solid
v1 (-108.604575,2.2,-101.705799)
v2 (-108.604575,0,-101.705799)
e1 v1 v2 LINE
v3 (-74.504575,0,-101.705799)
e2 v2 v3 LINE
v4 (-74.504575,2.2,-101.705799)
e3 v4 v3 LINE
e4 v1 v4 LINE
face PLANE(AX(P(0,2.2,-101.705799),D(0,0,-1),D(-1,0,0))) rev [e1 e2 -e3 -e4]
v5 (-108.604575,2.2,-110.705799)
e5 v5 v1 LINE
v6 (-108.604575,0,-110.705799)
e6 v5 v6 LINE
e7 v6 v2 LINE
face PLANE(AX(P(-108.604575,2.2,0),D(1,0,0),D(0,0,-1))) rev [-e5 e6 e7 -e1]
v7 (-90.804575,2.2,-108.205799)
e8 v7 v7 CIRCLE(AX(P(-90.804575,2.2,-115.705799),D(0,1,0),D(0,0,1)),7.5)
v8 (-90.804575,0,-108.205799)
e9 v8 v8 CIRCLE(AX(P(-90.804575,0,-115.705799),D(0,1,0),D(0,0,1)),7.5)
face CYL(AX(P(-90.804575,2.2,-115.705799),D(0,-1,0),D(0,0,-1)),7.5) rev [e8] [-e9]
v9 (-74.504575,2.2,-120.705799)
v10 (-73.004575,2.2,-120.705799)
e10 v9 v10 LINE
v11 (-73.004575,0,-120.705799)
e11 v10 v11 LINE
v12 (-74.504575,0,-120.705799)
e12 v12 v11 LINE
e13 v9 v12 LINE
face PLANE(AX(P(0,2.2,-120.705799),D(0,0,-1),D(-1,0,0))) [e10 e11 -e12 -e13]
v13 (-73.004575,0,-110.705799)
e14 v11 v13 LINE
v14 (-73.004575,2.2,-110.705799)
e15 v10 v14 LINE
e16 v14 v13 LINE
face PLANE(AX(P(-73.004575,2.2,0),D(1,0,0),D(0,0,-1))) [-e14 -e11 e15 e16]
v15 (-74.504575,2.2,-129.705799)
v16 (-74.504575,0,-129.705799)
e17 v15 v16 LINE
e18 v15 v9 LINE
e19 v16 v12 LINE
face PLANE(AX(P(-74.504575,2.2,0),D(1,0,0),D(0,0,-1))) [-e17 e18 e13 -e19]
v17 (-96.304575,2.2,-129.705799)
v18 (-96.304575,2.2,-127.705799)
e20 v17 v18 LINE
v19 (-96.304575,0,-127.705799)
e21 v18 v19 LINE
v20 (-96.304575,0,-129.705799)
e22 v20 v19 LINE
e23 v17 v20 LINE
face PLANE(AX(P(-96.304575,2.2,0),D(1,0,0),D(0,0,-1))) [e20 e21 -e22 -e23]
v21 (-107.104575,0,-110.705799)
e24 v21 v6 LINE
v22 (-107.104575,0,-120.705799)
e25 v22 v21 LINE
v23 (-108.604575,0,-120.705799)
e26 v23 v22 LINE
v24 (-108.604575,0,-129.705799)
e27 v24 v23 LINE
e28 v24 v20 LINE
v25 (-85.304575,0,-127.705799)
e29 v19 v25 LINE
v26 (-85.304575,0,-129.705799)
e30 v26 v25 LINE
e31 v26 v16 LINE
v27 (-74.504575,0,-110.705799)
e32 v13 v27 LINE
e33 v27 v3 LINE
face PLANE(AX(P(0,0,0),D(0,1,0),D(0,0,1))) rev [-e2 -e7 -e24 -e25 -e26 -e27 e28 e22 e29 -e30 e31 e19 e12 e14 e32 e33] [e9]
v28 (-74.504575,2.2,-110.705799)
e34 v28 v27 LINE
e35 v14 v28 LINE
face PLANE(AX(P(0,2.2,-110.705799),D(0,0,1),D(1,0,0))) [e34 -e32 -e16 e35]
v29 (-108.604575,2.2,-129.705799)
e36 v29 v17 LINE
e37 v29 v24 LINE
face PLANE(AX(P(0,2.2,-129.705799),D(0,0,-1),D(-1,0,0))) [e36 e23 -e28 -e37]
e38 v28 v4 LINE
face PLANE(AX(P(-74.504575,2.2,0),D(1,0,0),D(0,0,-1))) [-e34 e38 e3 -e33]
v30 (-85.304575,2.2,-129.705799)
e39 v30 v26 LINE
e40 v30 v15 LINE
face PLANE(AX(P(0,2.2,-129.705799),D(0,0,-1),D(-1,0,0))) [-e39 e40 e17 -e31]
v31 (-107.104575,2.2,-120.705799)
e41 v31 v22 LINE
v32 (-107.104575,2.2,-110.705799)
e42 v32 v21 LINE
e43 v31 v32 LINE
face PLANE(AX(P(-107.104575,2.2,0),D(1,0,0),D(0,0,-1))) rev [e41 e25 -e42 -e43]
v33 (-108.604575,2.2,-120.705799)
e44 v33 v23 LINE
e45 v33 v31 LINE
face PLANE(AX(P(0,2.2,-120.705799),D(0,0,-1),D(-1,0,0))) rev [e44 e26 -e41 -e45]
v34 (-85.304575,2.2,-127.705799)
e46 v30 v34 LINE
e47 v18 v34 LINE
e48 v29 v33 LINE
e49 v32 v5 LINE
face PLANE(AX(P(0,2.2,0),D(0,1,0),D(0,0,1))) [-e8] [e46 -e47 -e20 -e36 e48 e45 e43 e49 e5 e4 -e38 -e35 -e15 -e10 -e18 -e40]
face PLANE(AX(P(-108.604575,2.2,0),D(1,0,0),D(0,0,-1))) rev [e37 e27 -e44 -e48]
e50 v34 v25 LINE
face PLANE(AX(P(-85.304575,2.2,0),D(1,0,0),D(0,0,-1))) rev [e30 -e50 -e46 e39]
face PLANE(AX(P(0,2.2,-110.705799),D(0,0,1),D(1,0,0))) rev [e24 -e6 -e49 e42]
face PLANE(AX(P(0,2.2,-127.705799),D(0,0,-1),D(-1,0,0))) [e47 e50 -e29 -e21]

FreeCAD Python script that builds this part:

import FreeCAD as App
import Part
import Sketcher

V = App.Vector


def add_polygon(sketch, points):
    """Adds a closed chain of lines whose ends are joined by coincident constraints."""
    first, n = sketch.GeometryCount, len(points)
    for a, b in zip(points, points[1:] + points[:1]):
        sketch.addGeometry(Part.LineSegment(App.Vector(*a, 0), App.Vector(*b, 0)), False)
    for i in range(n):
        sketch.addConstraint(Sketcher.Constraint("Coincident", first + i, 2, first + (i + 1) % n, 1))

doc = App.newDocument("Part")
body = doc.addObject("PartDesign::Body", "Body")

# Sketch on XZ plane
sketch1 = body.newObject("Sketcher::SketchObject", "Sketch")
sketch1.AttachmentSupport = (doc.getObject("XZ_Plane"), [""])
sketch1.MapMode = "FlatFace"
add_polygon(sketch1, [(-74.5, -129.7), (-85.3, -129.7), (-85.3, -127.7), (-96.3, -127.7), (-96.3, -129.7), (-108.6, -129.7), (-108.6, -120.7), (-107.1, -120.7), (-107.1, -110.7), (-108.6, -110.7), (-108.6, -101.7), (-74.5, -101.7), (-74.5, -110.7), (-73, -110.7), (-73, -120.7), (-74.5, -120.7)])  # lines 0-15
sketch1.addGeometry(Part.Circle(V(-90.8, -115.7, 0), V(0, 0, 1), 7.5), False)  # 16
sketch1.addConstraint([
    Sketcher.Constraint("Horizontal", 0),
    Sketcher.Constraint("Vertical", 1),
    Sketcher.Constraint("Horizontal", 2),
    Sketcher.Constraint("Vertical", 3),
    Sketcher.Constraint("Horizontal", 4),
    Sketcher.Constraint("Vertical", 5),
    Sketcher.Constraint("Horizontal", 6),
    Sketcher.Constraint("Vertical", 7),
    Sketcher.Constraint("Horizontal", 8),
    Sketcher.Constraint("Vertical", 9),
    Sketcher.Constraint("Horizontal", 10),
    Sketcher.Constraint("Vertical", 11),
    Sketcher.Constraint("Horizontal", 12),
    Sketcher.Constraint("Vertical", 13),
    Sketcher.Constraint("Horizontal", 14),
    Sketcher.Constraint("Vertical", 15),
    Sketcher.Constraint("Horizontal", 0, 2, 3, 2),
    Sketcher.Constraint("Horizontal", 8, 2, 11, 2),
    Sketcher.Constraint("Horizontal", 6, 2, 13, 2),
    Sketcher.Constraint("Vertical", 5, 2, 8, 2),
    Sketcher.Constraint("Vertical", 11, 2, 14, 2),
    Sketcher.Constraint("Equal", 8, 12),
    Sketcher.Constraint("Equal", 5, 9),
    Sketcher.Constraint("Diameter", 16, 15.0),
    Sketcher.Constraint("DistanceX", 2, 2, 2, 1, 11.0),
    Sketcher.Constraint("DistanceY", 1, 1, 1, 2, 2.0),
    Sketcher.Constraint("DistanceY", 5, 1, 5, 2, 9.0),
    Sketcher.Constraint("DistanceY", 7, 1, 7, 2, 10.0),
    Sketcher.Constraint("DistanceX", 0, 2, 0, 1, 10.8),
    Sketcher.Constraint("DistanceX", 4, 2, 4, 1, 12.3),
    Sketcher.Constraint("DistanceX", 6, 1, 6, 2, 1.5),
    Sketcher.Constraint("DistanceY", 0, 2, 16, 3, 14.0),
    Sketcher.Constraint("DistanceX", 16, 3, 0, 2, 5.5),
    Sketcher.Constraint("DistanceY", 16, 3, -1, 1, 115.705799),
    Sketcher.Constraint("DistanceX", 16, 3, -1, 1, 90.804575),
])
pad1 = body.newObject("PartDesign::Pad", "Pad")
pad1.Profile = sketch1
pad1.Length = 2.2
pad1.Reversed = True

doc.recompute()
